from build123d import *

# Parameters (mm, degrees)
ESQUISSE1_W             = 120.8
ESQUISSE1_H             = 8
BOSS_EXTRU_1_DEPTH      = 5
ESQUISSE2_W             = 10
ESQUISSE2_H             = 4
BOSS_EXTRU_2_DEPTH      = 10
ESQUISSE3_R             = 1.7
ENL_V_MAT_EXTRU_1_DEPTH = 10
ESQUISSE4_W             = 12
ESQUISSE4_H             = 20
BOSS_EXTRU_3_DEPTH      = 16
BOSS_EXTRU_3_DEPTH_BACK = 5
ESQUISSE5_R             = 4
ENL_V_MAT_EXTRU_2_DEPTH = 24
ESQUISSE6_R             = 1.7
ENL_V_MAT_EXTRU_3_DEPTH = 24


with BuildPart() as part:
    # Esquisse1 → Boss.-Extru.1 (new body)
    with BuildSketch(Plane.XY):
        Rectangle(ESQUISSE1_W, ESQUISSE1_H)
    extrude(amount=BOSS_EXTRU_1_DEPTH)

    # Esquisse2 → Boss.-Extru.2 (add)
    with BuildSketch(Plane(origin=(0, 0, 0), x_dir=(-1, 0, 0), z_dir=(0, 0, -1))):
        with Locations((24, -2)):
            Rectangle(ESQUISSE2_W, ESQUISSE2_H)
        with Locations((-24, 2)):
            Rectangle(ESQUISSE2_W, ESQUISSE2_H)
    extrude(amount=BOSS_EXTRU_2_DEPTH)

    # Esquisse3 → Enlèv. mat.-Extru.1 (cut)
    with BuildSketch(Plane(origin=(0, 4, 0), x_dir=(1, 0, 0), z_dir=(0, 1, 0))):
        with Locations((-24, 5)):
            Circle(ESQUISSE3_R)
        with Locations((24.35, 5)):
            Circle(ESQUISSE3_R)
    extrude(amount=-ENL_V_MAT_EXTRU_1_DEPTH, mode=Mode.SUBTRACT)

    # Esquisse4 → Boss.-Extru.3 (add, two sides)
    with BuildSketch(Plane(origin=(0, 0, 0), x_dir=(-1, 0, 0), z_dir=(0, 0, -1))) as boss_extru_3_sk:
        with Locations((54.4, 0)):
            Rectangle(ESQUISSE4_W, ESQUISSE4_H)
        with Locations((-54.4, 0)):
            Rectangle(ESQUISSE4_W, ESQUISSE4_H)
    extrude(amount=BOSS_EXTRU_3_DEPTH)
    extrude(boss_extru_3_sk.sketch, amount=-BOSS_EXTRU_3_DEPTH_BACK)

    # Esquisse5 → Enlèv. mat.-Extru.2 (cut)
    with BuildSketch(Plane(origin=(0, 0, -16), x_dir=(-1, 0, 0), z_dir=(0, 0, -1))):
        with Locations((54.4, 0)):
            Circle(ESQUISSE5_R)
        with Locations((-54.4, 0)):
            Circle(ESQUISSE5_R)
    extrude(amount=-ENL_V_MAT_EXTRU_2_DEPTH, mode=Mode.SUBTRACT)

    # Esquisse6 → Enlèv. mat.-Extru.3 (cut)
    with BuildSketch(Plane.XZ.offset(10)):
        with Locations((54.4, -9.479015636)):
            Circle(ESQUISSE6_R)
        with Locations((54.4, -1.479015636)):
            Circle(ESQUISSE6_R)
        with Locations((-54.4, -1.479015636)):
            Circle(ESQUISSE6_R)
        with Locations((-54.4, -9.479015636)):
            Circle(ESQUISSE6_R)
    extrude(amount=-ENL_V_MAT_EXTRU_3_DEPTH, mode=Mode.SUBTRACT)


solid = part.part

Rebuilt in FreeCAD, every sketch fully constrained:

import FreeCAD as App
import Part
import Sketcher

V = App.Vector
Q = App.Units.Quantity

doc = App.newDocument("Part")
body = doc.addObject("PartDesign::Body", "Body")

# Sketch on XY plane
sketch1 = body.newObject("Sketcher::SketchObject", "Sketch")
sketch1.AttachmentSupport = (doc.getObject("XY_Plane"), [""])
sketch1.MapMode = "FlatFace"
sketch1.addGeometry([
    Part.LineSegment(V(-60.4, 4, 0), V(-60.4, -4, 0)),
    Part.LineSegment(V(-60.4, -4, 0), V(60.4, -4, 0)),
    Part.LineSegment(V(60.4, -4, 0), V(60.4, 4, 0)),
    Part.LineSegment(V(60.4, 4, 0), V(-60.4, 4, 0)),
], False)
sketch1.addConstraint([
    Sketcher.Constraint("Coincident", 0, 2, 1, 1),
    Sketcher.Constraint("Coincident", 1, 2, 2, 1),
    Sketcher.Constraint("Coincident", 2, 2, 3, 1),
    Sketcher.Constraint("Coincident", 3, 2, 0, 1),
    Sketcher.Constraint("Vertical", 0),
    Sketcher.Constraint("Horizontal", 1),
    Sketcher.Constraint("Vertical", 2),
    Sketcher.Constraint("Horizontal", 3),
    Sketcher.Constraint("Symmetric", 0, 2, 2, 2, -1, 1),
    Sketcher.Constraint("DistanceY", 0, 2, 0, 1, Q("8 mm")),
    Sketcher.Constraint("DistanceX", 1, 1, 1, 2, Q("120.8 mm")),
])
pad1 = body.newObject("PartDesign::Pad", "Pad")
pad1.Profile = sketch1
pad1.Length = 5

# Sketch on XY plane
sketch2 = body.newObject("Sketcher::SketchObject", "Sketch001")
sketch2.AttachmentSupport = (doc.getObject("XY_Plane"), [""])
sketch2.MapMode = "FlatFace"
sketch2.addGeometry([
    Part.LineSegment(V(-19, 0, 0), V(-19, -4, 0)),  # 0
    Part.LineSegment(V(-19, -4, 0), V(-29, -4, 0)),  # 1
    Part.LineSegment(V(-29, -4, 0), V(-29, 0, 0)),  # 2
    Part.LineSegment(V(-29, 0, 0), V(-19, 0, 0)),  # 3
    Part.LineSegment(V(29, 4, 0), V(29, 0, 0)),  # 4
    Part.LineSegment(V(29, 0, 0), V(19, 0, 0)),  # 5
    Part.LineSegment(V(19, 0, 0), V(19, 4, 0)),  # 6
    Part.LineSegment(V(19, 4, 0), V(29, 4, 0)),  # 7
], False)
sketch2.addConstraint([
    Sketcher.Constraint("Coincident", 0, 2, 1, 1),
    Sketcher.Constraint("Coincident", 1, 2, 2, 1),
    Sketcher.Constraint("Coincident", 2, 2, 3, 1),
    Sketcher.Constraint("Coincident", 3, 2, 0, 1),
    Sketcher.Constraint("Coincident", 4, 2, 5, 1),
    Sketcher.Constraint("Coincident", 5, 2, 6, 1),
    Sketcher.Constraint("Coincident", 6, 2, 7, 1),
    Sketcher.Constraint("Coincident", 7, 2, 4, 1),
    Sketcher.Constraint("Vertical", 0),
    Sketcher.Constraint("Horizontal", 1),
    Sketcher.Constraint("Vertical", 2),
    Sketcher.Constraint("Horizontal", 3),
    Sketcher.Constraint("Vertical", 4),
    Sketcher.Constraint("Horizontal", 5),
    Sketcher.Constraint("Vertical", 6),
    Sketcher.Constraint("Horizontal", 7),
    Sketcher.Constraint("Symmetric", 2, 2, 4, 2, -1, 1),
    Sketcher.Constraint("Symmetric", 0, 2, 6, 2, -1, 1),
    Sketcher.Constraint("PointOnObject", 2, 2, -1),
    Sketcher.Constraint("DistanceX", 1, 2, 1, 1, Q("10 mm")),
    Sketcher.Constraint("DistanceY", 0, 2, 0, 1, Q("4 mm")),
    Sketcher.Constraint("DistanceX", 0, 2, -1, 1, Q("19 mm")),
])
pad2 = body.newObject("PartDesign::Pad", "Pad001")
pad2.Profile = sketch2
pad2.Length = 10
pad2.Reversed = True

# Sketch on XZ plane
sketch3 = body.newObject("Sketcher::SketchObject", "Sketch002")
sketch3.AttachmentSupport = (doc.getObject("XZ_Plane"), [""])
sketch3.MapMode = "FlatFace"
sketch3.AttachmentOffset = App.Placement(V(0, 0, -4), App.Rotation())
sketch3.addGeometry([
    Part.Circle(V(-24, -5, 0), V(0, 0, 1), 1.7),
    Part.Circle(V(24.35, -5, 0), V(0, 0, 1), 1.7),
], False)
sketch3.addConstraint([
    Sketcher.Constraint("Equal", 0, 1),
    Sketcher.Constraint("Horizontal", 0, 3, 1, 3),
    Sketcher.Constraint("Diameter", 0, Q("3.4 mm")),
    Sketcher.Constraint("DistanceX", 0, 3, -1, 1, Q("24 mm")),
    Sketcher.Constraint("DistanceY", 0, 3, -1, 1, Q("5 mm")),
    Sketcher.Constraint("DistanceX", -1, 1, 1, 3, Q("24.35 mm")),
])
pocket1 = body.newObject("PartDesign::Pocket", "Pocket")
pocket1.Profile = sketch3
pocket1.Length = 10
pocket1.Reversed = True

# Sketch on XY plane
sketch4 = body.newObject("Sketcher::SketchObject", "Sketch003")
sketch4.AttachmentSupport = (doc.getObject("XY_Plane"), [""])
sketch4.MapMode = "FlatFace"
sketch4.addGeometry([
    Part.LineSegment(V(-48.4, 10, 0), V(-48.4, -10, 0)),  # 0
    Part.LineSegment(V(-48.4, -10, 0), V(-60.4, -10, 0)),  # 1
    Part.LineSegment(V(-60.4, -10, 0), V(-60.4, 10, 0)),  # 2
    Part.LineSegment(V(-60.4, 10, 0), V(-48.4, 10, 0)),  # 3
    Part.LineSegment(V(60.4, 10, 0), V(60.4, -10, 0)),  # 4
    Part.LineSegment(V(60.4, -10, 0), V(48.4, -10, 0)),  # 5
    Part.LineSegment(V(48.4, -10, 0), V(48.4, 10, 0)),  # 6
    Part.LineSegment(V(48.4, 10, 0), V(60.4, 10, 0)),  # 7
], False)
sketch4.addConstraint([
    Sketcher.Constraint("Coincident", 0, 2, 1, 1),
    Sketcher.Constraint("Coincident", 1, 2, 2, 1),
    Sketcher.Constraint("Coincident", 2, 2, 3, 1),
    Sketcher.Constraint("Coincident", 3, 2, 0, 1),
    Sketcher.Constraint("Coincident", 4, 2, 5, 1),
    Sketcher.Constraint("Coincident", 5, 2, 6, 1),
    Sketcher.Constraint("Coincident", 6, 2, 7, 1),
    Sketcher.Constraint("Coincident", 7, 2, 4, 1),
    Sketcher.Constraint("Vertical", 0),
    Sketcher.Constraint("Horizontal", 1),
    Sketcher.Constraint("Vertical", 2),
    Sketcher.Constraint("Horizontal", 3),
    Sketcher.Constraint("Vertical", 4),
    Sketcher.Constraint("Horizontal", 5),
    Sketcher.Constraint("Vertical", 6),
    Sketcher.Constraint("Horizontal", 7),
    Sketcher.Constraint("Symmetric", 2, 2, 4, 2, -1, 1),
    Sketcher.Constraint("Symmetric", 0, 2, 6, 2, -1, 1),
    Sketcher.Constraint("Horizontal", 1, 2, 4, 2),
    Sketcher.Constraint("DistanceX", 1, 2, 1, 1, Q("12 mm")),
    Sketcher.Constraint("DistanceY", 0, 2, 0, 1, Q("20 mm")),
    Sketcher.Constraint("DistanceX", 0, 2, -1, 1, Q("48.4 mm")),
])
pad3 = body.newObject("PartDesign::Pad", "Pad002")
pad3.Profile = sketch4
pad3.Type = "TwoLengths"
pad3.Length = 16
pad3.Length2 = 5
pad3.Reversed = True

# Sketch on XY plane
sketch5 = body.newObject("Sketcher::SketchObject", "Sketch004")
sketch5.AttachmentSupport = (doc.getObject("XY_Plane"), [""])
sketch5.MapMode = "FlatFace"
sketch5.AttachmentOffset = App.Placement(V(0, 0, -16), App.Rotation())
sketch5.addGeometry([
    Part.Circle(V(-54.4, 0, 0), V(0, 0, 1), 4),
    Part.Circle(V(54.4, 0, 0), V(0, 0, 1), 4),
], False)
sketch5.addConstraint([
    Sketcher.Constraint("Equal", 0, 1),
    Sketcher.Constraint("Symmetric", 0, 3, 1, 3, -1, 1),
    Sketcher.Constraint("PointOnObject", 0, 3, -1),
    Sketcher.Constraint("Diameter", 0, Q("8 mm")),
    Sketcher.Constraint("DistanceX", 0, 3, -1, 1, Q("54.4 mm")),
])
pocket2 = body.newObject("PartDesign::Pocket", "Pocket001")
pocket2.Profile = sketch5
pocket2.Length = 24
pocket2.Reversed = True

# Sketch on XZ plane
sketch6 = body.newObject("Sketcher::SketchObject", "Sketch005")
sketch6.AttachmentSupport = (doc.getObject("XZ_Plane"), [""])
sketch6.MapMode = "FlatFace"
sketch6.AttachmentOffset = App.Placement(V(0, 0, 10), App.Rotation())
sketch6.addGeometry([
    Part.Circle(V(54.4, -9.479016, 0), V(0, 0, 1), 1.7),
    Part.Circle(V(54.4, -1.479016, 0), V(0, 0, 1), 1.7),
    Part.Circle(V(-54.4, -1.479016, 0), V(0, 0, 1), 1.7),
    Part.Circle(V(-54.4, -9.479016, 0), V(0, 0, 1), 1.7),
], False)
sketch6.addConstraint([
    Sketcher.Constraint("Equal", 0, 1),
    Sketcher.Constraint("Equal", 1, 2),
    Sketcher.Constraint("Equal", 2, 3),
    Sketcher.Constraint("Symmetric", 1, 3, 2, 3, -2),
    Sketcher.Constraint("Symmetric", 0, 3, 3, 3, -2),
    Sketcher.Constraint("Vertical", 0, 3, 1, 3),
    Sketcher.Constraint("Diameter", 0, Q("3.4 mm")),
    Sketcher.Constraint("DistanceY", 0, 3, 1, 3, Q("8 mm")),
    Sketcher.Constraint("DistanceX", -1, 1, 0, 3, Q("54.4 mm")),
    Sketcher.Constraint("DistanceY", 0, 3, -1, 1, Q("9.479016 mm")),
])
pocket3 = body.newObject("PartDesign::Pocket", "Pocket002")
pocket3.Profile = sketch6
pocket3.Length = 24

doc.recompute()
